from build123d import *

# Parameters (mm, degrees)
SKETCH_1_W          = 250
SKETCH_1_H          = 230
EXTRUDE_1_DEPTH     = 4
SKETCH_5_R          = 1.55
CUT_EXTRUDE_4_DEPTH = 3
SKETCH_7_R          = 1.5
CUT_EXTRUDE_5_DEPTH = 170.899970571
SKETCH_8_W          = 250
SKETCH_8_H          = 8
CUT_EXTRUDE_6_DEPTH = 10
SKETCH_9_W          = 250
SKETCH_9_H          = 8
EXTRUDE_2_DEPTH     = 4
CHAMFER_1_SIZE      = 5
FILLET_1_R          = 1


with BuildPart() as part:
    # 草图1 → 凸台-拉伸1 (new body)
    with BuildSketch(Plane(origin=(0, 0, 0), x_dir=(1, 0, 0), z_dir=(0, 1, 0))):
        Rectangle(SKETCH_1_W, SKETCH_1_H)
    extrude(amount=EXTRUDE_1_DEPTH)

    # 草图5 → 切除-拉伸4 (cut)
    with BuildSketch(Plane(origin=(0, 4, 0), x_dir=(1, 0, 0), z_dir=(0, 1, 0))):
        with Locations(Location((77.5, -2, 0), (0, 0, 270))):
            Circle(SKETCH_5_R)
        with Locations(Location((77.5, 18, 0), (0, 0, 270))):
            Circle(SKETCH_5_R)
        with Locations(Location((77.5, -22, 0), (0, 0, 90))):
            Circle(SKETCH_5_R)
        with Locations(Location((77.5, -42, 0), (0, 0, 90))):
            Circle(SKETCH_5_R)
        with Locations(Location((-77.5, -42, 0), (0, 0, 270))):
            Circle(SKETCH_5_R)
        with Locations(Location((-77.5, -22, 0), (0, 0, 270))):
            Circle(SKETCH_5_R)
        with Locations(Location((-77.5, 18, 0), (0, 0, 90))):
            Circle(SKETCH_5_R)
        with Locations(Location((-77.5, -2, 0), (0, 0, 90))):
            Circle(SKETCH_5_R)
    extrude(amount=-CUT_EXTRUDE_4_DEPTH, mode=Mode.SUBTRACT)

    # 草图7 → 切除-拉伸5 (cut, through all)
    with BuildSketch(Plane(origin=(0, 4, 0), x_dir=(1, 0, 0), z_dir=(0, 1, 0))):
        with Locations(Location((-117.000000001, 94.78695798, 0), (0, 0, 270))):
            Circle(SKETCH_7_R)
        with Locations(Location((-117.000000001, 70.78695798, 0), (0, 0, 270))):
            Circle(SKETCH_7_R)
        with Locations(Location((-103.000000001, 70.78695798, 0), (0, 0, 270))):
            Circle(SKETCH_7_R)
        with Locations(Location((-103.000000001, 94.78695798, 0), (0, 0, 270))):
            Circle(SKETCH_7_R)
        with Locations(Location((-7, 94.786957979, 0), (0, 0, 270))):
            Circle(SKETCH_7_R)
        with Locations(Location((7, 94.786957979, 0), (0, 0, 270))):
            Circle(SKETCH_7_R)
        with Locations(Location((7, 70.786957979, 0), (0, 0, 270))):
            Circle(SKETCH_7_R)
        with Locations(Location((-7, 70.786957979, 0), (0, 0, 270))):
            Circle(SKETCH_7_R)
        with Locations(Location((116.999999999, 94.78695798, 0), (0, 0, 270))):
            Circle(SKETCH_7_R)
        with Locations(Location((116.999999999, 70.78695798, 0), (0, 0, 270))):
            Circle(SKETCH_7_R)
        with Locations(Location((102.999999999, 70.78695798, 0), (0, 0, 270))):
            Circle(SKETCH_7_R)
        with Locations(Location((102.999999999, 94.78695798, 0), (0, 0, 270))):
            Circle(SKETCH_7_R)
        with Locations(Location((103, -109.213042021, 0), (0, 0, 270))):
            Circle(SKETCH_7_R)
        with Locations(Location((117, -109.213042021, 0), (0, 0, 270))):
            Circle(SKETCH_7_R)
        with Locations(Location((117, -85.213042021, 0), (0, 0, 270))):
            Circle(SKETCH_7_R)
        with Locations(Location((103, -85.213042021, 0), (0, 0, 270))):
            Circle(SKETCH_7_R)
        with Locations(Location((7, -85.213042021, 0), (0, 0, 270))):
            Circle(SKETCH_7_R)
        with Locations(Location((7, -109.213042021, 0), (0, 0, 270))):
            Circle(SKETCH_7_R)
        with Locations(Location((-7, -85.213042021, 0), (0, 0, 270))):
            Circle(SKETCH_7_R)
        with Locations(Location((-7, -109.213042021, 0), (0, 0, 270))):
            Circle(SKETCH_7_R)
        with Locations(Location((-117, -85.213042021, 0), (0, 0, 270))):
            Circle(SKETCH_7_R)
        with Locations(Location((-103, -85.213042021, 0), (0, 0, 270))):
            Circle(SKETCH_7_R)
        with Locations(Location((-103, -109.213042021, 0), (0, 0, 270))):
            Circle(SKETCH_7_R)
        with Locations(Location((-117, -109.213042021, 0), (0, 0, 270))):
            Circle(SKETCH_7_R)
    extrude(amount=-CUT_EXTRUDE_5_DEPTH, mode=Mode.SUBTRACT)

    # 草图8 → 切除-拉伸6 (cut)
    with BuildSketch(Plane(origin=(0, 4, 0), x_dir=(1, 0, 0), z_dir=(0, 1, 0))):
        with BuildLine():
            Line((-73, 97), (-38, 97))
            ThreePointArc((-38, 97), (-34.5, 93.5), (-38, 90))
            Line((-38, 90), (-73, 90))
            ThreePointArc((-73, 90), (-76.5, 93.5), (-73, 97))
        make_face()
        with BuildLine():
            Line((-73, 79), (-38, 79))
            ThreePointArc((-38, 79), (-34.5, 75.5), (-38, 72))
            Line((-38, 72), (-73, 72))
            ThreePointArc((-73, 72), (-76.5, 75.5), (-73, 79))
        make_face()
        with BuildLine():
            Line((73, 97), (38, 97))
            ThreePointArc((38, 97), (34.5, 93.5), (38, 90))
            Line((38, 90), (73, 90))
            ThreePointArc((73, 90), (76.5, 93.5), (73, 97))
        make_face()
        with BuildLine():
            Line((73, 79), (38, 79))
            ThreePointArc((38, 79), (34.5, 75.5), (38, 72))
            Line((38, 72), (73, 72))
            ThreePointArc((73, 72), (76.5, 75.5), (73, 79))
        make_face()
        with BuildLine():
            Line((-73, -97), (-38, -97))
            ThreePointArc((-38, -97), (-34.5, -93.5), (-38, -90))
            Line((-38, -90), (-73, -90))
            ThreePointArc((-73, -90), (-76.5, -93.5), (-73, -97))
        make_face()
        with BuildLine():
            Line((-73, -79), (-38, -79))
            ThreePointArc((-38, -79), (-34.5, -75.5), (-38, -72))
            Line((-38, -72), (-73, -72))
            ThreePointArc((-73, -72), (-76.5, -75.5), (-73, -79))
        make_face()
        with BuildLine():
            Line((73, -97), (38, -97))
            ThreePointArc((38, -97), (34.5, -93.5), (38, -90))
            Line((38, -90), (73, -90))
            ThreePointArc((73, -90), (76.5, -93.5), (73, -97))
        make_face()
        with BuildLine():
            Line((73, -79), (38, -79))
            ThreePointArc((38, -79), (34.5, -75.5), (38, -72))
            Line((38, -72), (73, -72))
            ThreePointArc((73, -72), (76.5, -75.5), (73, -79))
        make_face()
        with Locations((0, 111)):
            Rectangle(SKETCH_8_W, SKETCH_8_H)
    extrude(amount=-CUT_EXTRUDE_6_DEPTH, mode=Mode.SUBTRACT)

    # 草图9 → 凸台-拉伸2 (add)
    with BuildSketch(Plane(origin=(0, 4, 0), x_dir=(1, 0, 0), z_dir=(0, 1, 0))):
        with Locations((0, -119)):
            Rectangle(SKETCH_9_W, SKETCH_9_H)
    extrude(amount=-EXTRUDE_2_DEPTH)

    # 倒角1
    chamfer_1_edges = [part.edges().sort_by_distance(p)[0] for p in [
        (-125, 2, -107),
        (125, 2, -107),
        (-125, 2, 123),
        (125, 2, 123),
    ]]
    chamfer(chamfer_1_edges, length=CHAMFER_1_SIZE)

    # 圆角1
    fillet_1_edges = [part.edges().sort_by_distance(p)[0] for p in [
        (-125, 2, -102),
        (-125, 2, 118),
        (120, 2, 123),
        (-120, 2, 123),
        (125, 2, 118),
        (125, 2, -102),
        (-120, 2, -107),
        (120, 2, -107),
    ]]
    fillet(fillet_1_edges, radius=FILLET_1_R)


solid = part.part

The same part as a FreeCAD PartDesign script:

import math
import FreeCAD as App
import Part
import Sketcher

V = App.Vector
Q = App.Units.Quantity


def edges_at(feature, points):
    """Names of the edges that pass closest to the given points."""
    edges = feature.Shape.Edges
    near = lambda p: min(range(len(edges)), key=lambda i: edges[i].distToShape(Part.Vertex(*p))[0])
    return sorted({f"Edge{near(p) + 1}" for p in points})

doc = App.newDocument("Part")
params = doc.addObject("Spreadsheet::Sheet", "Params")
for row, (alias, value) in enumerate([
    ("sketch1_width", "250 mm"),
    ("sketch1_height", "230 mm"),
    ("pad1_length", "4 mm"),
    ("sketch2_diameter", "3.1 mm"),
    ("pocket1_length", "3 mm"),
    ("sketch3_diameter", "3 mm"),
    ("sketch4_radius", "3.5 mm"),
    ("sketch4_width", "35 mm"),
    ("sketch4_width2", "250 mm"),
    ("sketch4_height", "8 mm"),
    ("pocket3_length", "10 mm"),
    ("sketch5_width", "250 mm"),
    ("sketch5_height", "8 mm"),
    ("pad2_length", "4 mm"),
    ("chamfer_size", "5 mm"),
    ("fillet_radius", "1 mm"),
], start=1):
    params.set(f"A{row}", alias)
    params.set(f"B{row}", "=" + value)
    params.setAlias(f"B{row}", alias)

body = doc.addObject("PartDesign::Body", "Body")

# Sketch on XZ plane
sketch1 = body.newObject("Sketcher::SketchObject", "Sketch")
sketch1.AttachmentSupport = (doc.getObject("XZ_Plane"), [""])
sketch1.MapMode = "FlatFace"
sketch1.addGeometry([
    Part.LineSegment(V(-125, -115, 0), V(-125, 115, 0)),
    Part.LineSegment(V(-125, 115, 0), V(125, 115, 0)),
    Part.LineSegment(V(125, 115, 0), V(125, -115, 0)),
    Part.LineSegment(V(125, -115, 0), V(-125, -115, 0)),
], False)
sketch1.addConstraint([
    Sketcher.Constraint("Coincident", 0, 2, 1, 1),
    Sketcher.Constraint("Coincident", 1, 2, 2, 1),
    Sketcher.Constraint("Coincident", 2, 2, 3, 1),
    Sketcher.Constraint("Coincident", 3, 2, 0, 1),
    Sketcher.Constraint("Vertical", 0),
    Sketcher.Constraint("Horizontal", 1),
    Sketcher.Constraint("Vertical", 2),
    Sketcher.Constraint("Horizontal", 3),
    Sketcher.Constraint("Symmetric", 0, 2, 2, 2, -1, 1),
    Sketcher.Constraint("DistanceX", 1, 1, 1, 2, Q("250 mm")),
    Sketcher.Constraint("DistanceY", 0, 1, 0, 2, Q("230 mm")),
])
sketch1.setExpression("Constraints[9]", "Params.sketch1_width")
sketch1.setExpression("Constraints[10]", "Params.sketch1_height")
pad1 = body.newObject("PartDesign::Pad", "Pad")
pad1.Profile = sketch1
pad1.setExpression("Length", "Params.pad1_length")
pad1.Reversed = True

# Sketch on XZ plane
sketch2 = body.newObject("Sketcher::SketchObject", "Sketch001")
sketch2.AttachmentSupport = (doc.getObject("XZ_Plane"), [""])
sketch2.MapMode = "FlatFace"
sketch2.AttachmentOffset = App.Placement(V(0, 0, -4), App.Rotation())
sketch2.addGeometry([
    Part.Circle(V(77.5, 2, 0), V(0, 0, 1), 1.55),  # 0
    Part.Circle(V(77.5, -18, 0), V(0, 0, 1), 1.55),  # 1
    Part.Circle(V(77.5, 22, 0), V(0, 0, 1), 1.55),  # 2
    Part.Circle(V(77.5, 42, 0), V(0, 0, 1), 1.55),  # 3
    Part.Circle(V(-77.5, 42, 0), V(0, 0, 1), 1.55),  # 4
    Part.Circle(V(-77.5, 22, 0), V(0, 0, 1), 1.55),  # 5
    Part.Circle(V(-77.5, -18, 0), V(0, 0, 1), 1.55),  # 6
    Part.Circle(V(-77.5, 2, 0), V(0, 0, 1), 1.55),  # 7
], False)
sketch2.addConstraint([
    Sketcher.Constraint("Equal", 0, 1),
    Sketcher.Constraint("Equal", 1, 2),
    Sketcher.Constraint("Equal", 2, 3),
    Sketcher.Constraint("Equal", 3, 4),
    Sketcher.Constraint("Equal", 4, 5),
    Sketcher.Constraint("Equal", 5, 6),
    Sketcher.Constraint("Equal", 6, 7),
    Sketcher.Constraint("Symmetric", 3, 3, 4, 3, -2),
    Sketcher.Constraint("Symmetric", 2, 3, 5, 3, -2),
    Sketcher.Constraint("Symmetric", 1, 3, 6, 3, -2),
    Sketcher.Constraint("Symmetric", 0, 3, 7, 3, -2),
    Sketcher.Constraint("Vertical", 0, 3, 1, 3),
    Sketcher.Constraint("Vertical", 1, 3, 2, 3),
    Sketcher.Constraint("Vertical", 2, 3, 3, 3),
    Sketcher.Constraint("Diameter", 0, Q("3.1 mm")),
    Sketcher.Constraint("DistanceY", -1, 1, 0, 3, Q("2 mm")),
    Sketcher.Constraint("DistanceY", 1, 3, -1, 1, Q("18 mm")),
    Sketcher.Constraint("DistanceY", -1, 1, 2, 3, Q("22 mm")),
    Sketcher.Constraint("DistanceY", -1, 1, 3, 3, Q("42 mm")),
    Sketcher.Constraint("DistanceX", 4, 3, 3, 3, Q("155 mm")),
])
sketch2.setExpression("Constraints[14]", "Params.sketch2_diameter")
pocket1 = body.newObject("PartDesign::Pocket", "Pocket")
pocket1.Profile = sketch2
pocket1.setExpression("Length", "Params.pocket1_length")
pocket1.Reversed = True

# Sketch on XZ plane
sketch3 = body.newObject("Sketcher::SketchObject", "Sketch002")
sketch3.AttachmentSupport = (doc.getObject("XZ_Plane"), [""])
sketch3.MapMode = "FlatFace"
sketch3.AttachmentOffset = App.Placement(V(0, 0, -4), App.Rotation())
sketch3.addGeometry([
    Part.Circle(V(-117, -94.786958, 0), V(0, 0, 1), 1.5),  # 0
    Part.Circle(V(-117, -70.786958, 0), V(0, 0, 1), 1.5),  # 1
    Part.Circle(V(-103, -70.786958, 0), V(0, 0, 1), 1.5),  # 2
    Part.Circle(V(-103, -94.786958, 0), V(0, 0, 1), 1.5),  # 3
    Part.Circle(V(-7, -94.786958, 0), V(0, 0, 1), 1.5),  # 4
    Part.Circle(V(7, -94.786958, 0), V(0, 0, 1), 1.5),  # 5
    Part.Circle(V(7, -70.786958, 0), V(0, 0, 1), 1.5),  # 6
    Part.Circle(V(-7, -70.786958, 0), V(0, 0, 1), 1.5),  # 7
    Part.Circle(V(117, -94.786958, 0), V(0, 0, 1), 1.5),  # 8
    Part.Circle(V(117, -70.786958, 0), V(0, 0, 1), 1.5),  # 9
    Part.Circle(V(103, -70.786958, 0), V(0, 0, 1), 1.5),  # 10
    Part.Circle(V(103, -94.786958, 0), V(0, 0, 1), 1.5),  # 11
    Part.Circle(V(103, 109.213042, 0), V(0, 0, 1), 1.5),  # 12
    Part.Circle(V(117, 109.213042, 0), V(0, 0, 1), 1.5),  # 13
    Part.Circle(V(117, 85.213042, 0), V(0, 0, 1), 1.5),  # 14
    Part.Circle(V(103, 85.213042, 0), V(0, 0, 1), 1.5),  # 15
    Part.Circle(V(7, 85.213042, 0), V(0, 0, 1), 1.5),  # 16
    Part.Circle(V(7, 109.213042, 0), V(0, 0, 1), 1.5),  # 17
    Part.Circle(V(-7, 85.213042, 0), V(0, 0, 1), 1.5),  # 18
    Part.Circle(V(-7, 109.213042, 0), V(0, 0, 1), 1.5),  # 19
    Part.Circle(V(-117, 85.213042, 0), V(0, 0, 1), 1.5),  # 20
    Part.Circle(V(-103, 85.213042, 0), V(0, 0, 1), 1.5),  # 21
    Part.Circle(V(-103, 109.213042, 0), V(0, 0, 1), 1.5),  # 22
    Part.Circle(V(-117, 109.213042, 0), V(0, 0, 1), 1.5),  # 23
], False)
sketch3.addConstraint([
    Sketcher.Constraint("Equal", 0, 1),
    Sketcher.Constraint("Equal", 1, 2),
    Sketcher.Constraint("Equal", 2, 3),
    Sketcher.Constraint("Equal", 3, 4),
    Sketcher.Constraint("Equal", 4, 5),
    Sketcher.Constraint("Equal", 5, 6),
    Sketcher.Constraint("Equal", 6, 7),
    Sketcher.Constraint("Equal", 7, 8),
    Sketcher.Constraint("Equal", 8, 9),
    Sketcher.Constraint("Equal", 9, 10),
    Sketcher.Constraint("Equal", 10, 11),
    Sketcher.Constraint("Equal", 11, 12),
    Sketcher.Constraint("Equal", 12, 13),
    Sketcher.Constraint("Equal", 13, 14),
    Sketcher.Constraint("Equal", 14, 15),
    Sketcher.Constraint("Equal", 15, 16),
    Sketcher.Constraint("Equal", 16, 17),
    Sketcher.Constraint("Equal", 17, 18),
    Sketcher.Constraint("Equal", 18, 19),
    Sketcher.Constraint("Equal", 19, 20),
    Sketcher.Constraint("Equal", 20, 21),
    Sketcher.Constraint("Equal", 21, 22),
    Sketcher.Constraint("Equal", 22, 23),
    Sketcher.Constraint("Symmetric", 4, 3, 5, 3, -2),
    Sketcher.Constraint("Symmetric", 6, 3, 7, 3, -2),
    Sketcher.Constraint("Symmetric", 0, 3, 8, 3, -2),
    Sketcher.Constraint("Symmetric", 1, 3, 9, 3, -2),
    Sketcher.Constraint("Symmetric", 2, 3, 10, 3, -2),
    Sketcher.Constraint("Symmetric", 3, 3, 11, 3, -2),
    Sketcher.Constraint("Symmetric", 16, 3, 18, 3, -2),
    Sketcher.Constraint("Symmetric", 17, 3, 19, 3, -2),
    Sketcher.Constraint("Symmetric", 14, 3, 20, 3, -2),
    Sketcher.Constraint("Symmetric", 15, 3, 21, 3, -2),
    Sketcher.Constraint("Symmetric", 12, 3, 22, 3, -2),
    Sketcher.Constraint("Symmetric", 13, 3, 23, 3, -2),
    Sketcher.Constraint("Horizontal", 1, 3, 2, 3),
    Sketcher.Constraint("Horizontal", 0, 3, 3, 3),
    Sketcher.Constraint("Horizontal", 3, 3, 4, 3),
    Sketcher.Constraint("Horizontal", 2, 3, 6, 3),
    Sketcher.Constraint("Horizontal", 12, 3, 13, 3),
    Sketcher.Constraint("Horizontal", 14, 3, 15, 3),
    Sketcher.Constraint("Horizontal", 15, 3, 16, 3),
    Sketcher.Constraint("Horizontal", 13, 3, 17, 3),
    Sketcher.Constraint("Vertical", 0, 3, 1, 3),
    Sketcher.Constraint("Vertical", 2, 3, 3, 3),
    Sketcher.Constraint("Vertical", 5, 3, 6, 3),
    Sketcher.Constraint("Vertical", 11, 3, 12, 3),
    Sketcher.Constraint("Vertical", 9, 3, 13, 3),
    Sketcher.Constraint("Vertical", 13, 3, 14, 3),
    Sketcher.Constraint("Vertical", 12, 3, 15, 3),
    Sketcher.Constraint("Vertical", 6, 3, 16, 3),
    Sketcher.Constraint("Vertical", 16, 3, 17, 3),
    Sketcher.Constraint("Diameter", 0, Q("3 mm")),
    Sketcher.Constraint("DistanceX", 0, 3, -1, 1, Q("117 mm")),
    Sketcher.Constraint("DistanceX", 2, 3, -1, 1, Q("103 mm")),
    Sketcher.Constraint("DistanceX", 4, 3, -1, 1, Q("7 mm")),
    Sketcher.Constraint("DistanceY", 0, 3, 1, 3, Q("24 mm")),
    Sketcher.Constraint("DistanceY", 10, 3, 12, 3, Q("180 mm")),
    Sketcher.Constraint("DistanceY", 14, 3, 13, 3, Q("24 mm")),
    Sketcher.Constraint("DistanceY", 0, 3, -1, 1, Q("94.786958 mm")),
])
sketch3.setExpression("Constraints[52]", "Params.sketch3_diameter")
pocket2 = body.newObject("PartDesign::Pocket", "Pocket001")
pocket2.Profile = sketch3
pocket2.Type = "ThroughAll"
pocket2.Reversed = True

# Sketch on XZ plane
sketch4 = body.newObject("Sketcher::SketchObject", "Sketch003")
sketch4.AttachmentSupport = (doc.getObject("XZ_Plane"), [""])
sketch4.MapMode = "FlatFace"
sketch4.AttachmentOffset = App.Placement(V(0, 0, -4), App.Rotation())
sketch4.addGeometry([
    Part.LineSegment(V(-38, -97, 0), V(-73, -97, 0)),  # 0
    Part.ArcOfCircle(Part.Circle(V(-73, -93.5, 0), V(0, 0, 1), 3.5), math.radians(90), math.radians(270)),  # 1
    Part.LineSegment(V(-73, -90, 0), V(-38, -90, 0)),  # 2
    Part.ArcOfCircle(Part.Circle(V(-38, -93.5, 0), V(0, 0, 1), 3.5), math.radians(-90), math.radians(90)),  # 3
    Part.LineSegment(V(-38, -79, 0), V(-73, -79, 0)),  # 4
    Part.ArcOfCircle(Part.Circle(V(-73, -75.5, 0), V(0, 0, 1), 3.5), math.radians(90), math.radians(270)),  # 5
    Part.LineSegment(V(-73, -72, 0), V(-38, -72, 0)),  # 6
    Part.ArcOfCircle(Part.Circle(V(-38, -75.5, 0), V(0, 0, 1), 3.5), math.radians(-90), math.radians(90)),  # 7
    Part.LineSegment(V(73, -97, 0), V(38, -97, 0)),  # 8
    Part.ArcOfCircle(Part.Circle(V(38, -93.5, 0), V(0, 0, 1), 3.5), math.radians(90), math.radians(270)),  # 9
    Part.LineSegment(V(38, -90, 0), V(73, -90, 0)),  # 10
    Part.ArcOfCircle(Part.Circle(V(73, -93.5, 0), V(0, 0, 1), 3.5), math.radians(-90), math.radians(90)),  # 11
    Part.LineSegment(V(73, -79, 0), V(38, -79, 0)),  # 12
    Part.ArcOfCircle(Part.Circle(V(38, -75.5, 0), V(0, 0, 1), 3.5), math.radians(90), math.radians(270)),  # 13
    Part.LineSegment(V(38, -72, 0), V(73, -72, 0)),  # 14
    Part.ArcOfCircle(Part.Circle(V(73, -75.5, 0), V(0, 0, 1), 3.5), math.radians(-90), math.radians(90)),  # 15
    Part.LineSegment(V(-73, 97, 0), V(-38, 97, 0)),  # 16
    Part.ArcOfCircle(Part.Circle(V(-38, 93.5, 0), V(0, 0, 1), 3.5), math.radians(-90), math.radians(90)),  # 17
    Part.LineSegment(V(-38, 90, 0), V(-73, 90, 0)),  # 18
    Part.ArcOfCircle(Part.Circle(V(-73, 93.5, 0), V(0, 0, 1), 3.5), math.radians(90), math.radians(270)),  # 19
    Part.LineSegment(V(-73, 79, 0), V(-38, 79, 0)),  # 20
    Part.ArcOfCircle(Part.Circle(V(-38, 75.5, 0), V(0, 0, 1), 3.5), math.radians(-90), math.radians(90)),  # 21
    Part.LineSegment(V(-38, 72, 0), V(-73, 72, 0)),  # 22
    Part.ArcOfCircle(Part.Circle(V(-73, 75.5, 0), V(0, 0, 1), 3.5), math.radians(90), math.radians(270)),  # 23
    Part.LineSegment(V(38, 97, 0), V(73, 97, 0)),  # 24
    Part.ArcOfCircle(Part.Circle(V(73, 93.5, 0), V(0, 0, 1), 3.5), math.radians(-90), math.radians(90)),  # 25
    Part.LineSegment(V(73, 90, 0), V(38, 90, 0)),  # 26
    Part.ArcOfCircle(Part.Circle(V(38, 93.5, 0), V(0, 0, 1), 3.5), math.radians(90), math.radians(270)),  # 27
    Part.LineSegment(V(38, 79, 0), V(73, 79, 0)),  # 28
    Part.ArcOfCircle(Part.Circle(V(73, 75.5, 0), V(0, 0, 1), 3.5), math.radians(-90), math.radians(90)),  # 29
    Part.LineSegment(V(73, 72, 0), V(38, 72, 0)),  # 30
    Part.ArcOfCircle(Part.Circle(V(38, 75.5, 0), V(0, 0, 1), 3.5), math.radians(90), math.radians(270)),  # 31
    Part.LineSegment(V(-125, -115, 0), V(-125, -107, 0)),  # 32
    Part.LineSegment(V(-125, -107, 0), V(125, -107, 0)),  # 33
    Part.LineSegment(V(125, -107, 0), V(125, -115, 0)),  # 34
    Part.LineSegment(V(125, -115, 0), V(-125, -115, 0)),  # 35
], False)
sketch4.addConstraint([
    Sketcher.Constraint("Tangent", 0, 2, 1, 2),
    Sketcher.Constraint("Tangent", 1, 1, 2, 1),
    Sketcher.Constraint("Tangent", 2, 2, 3, 2),
    Sketcher.Constraint("Tangent", 3, 1, 0, 1),
    Sketcher.Constraint("Tangent", 4, 2, 5, 2),
    Sketcher.Constraint("Tangent", 5, 1, 6, 1),
    Sketcher.Constraint("Tangent", 6, 2, 7, 2),
    Sketcher.Constraint("Tangent", 7, 1, 4, 1),
    Sketcher.Constraint("Tangent", 8, 2, 9, 2),
    Sketcher.Constraint("Tangent", 9, 1, 10, 1),
    Sketcher.Constraint("Tangent", 10, 2, 11, 2),
    Sketcher.Constraint("Tangent", 11, 1, 8, 1),
    Sketcher.Constraint("Tangent", 12, 2, 13, 2),
    Sketcher.Constraint("Tangent", 13, 1, 14, 1),
    Sketcher.Constraint("Tangent", 14, 2, 15, 2),
    Sketcher.Constraint("Tangent", 15, 1, 12, 1),
    Sketcher.Constraint("Tangent", 16, 2, 17, 2),
    Sketcher.Constraint("Tangent", 17, 1, 18, 1),
    Sketcher.Constraint("Tangent", 18, 2, 19, 2),
    Sketcher.Constraint("Tangent", 19, 1, 16, 1),
    Sketcher.Constraint("Tangent", 20, 2, 21, 2),
    Sketcher.Constraint("Tangent", 21, 1, 22, 1),
    Sketcher.Constraint("Tangent", 22, 2, 23, 2),
    Sketcher.Constraint("Tangent", 23, 1, 20, 1),
    Sketcher.Constraint("Tangent", 24, 2, 25, 2),
    Sketcher.Constraint("Tangent", 25, 1, 26, 1),
    Sketcher.Constraint("Tangent", 26, 2, 27, 2),
    Sketcher.Constraint("Tangent", 27, 1, 24, 1),
    Sketcher.Constraint("Tangent", 28, 2, 29, 2),
    Sketcher.Constraint("Tangent", 29, 1, 30, 1),
    Sketcher.Constraint("Tangent", 30, 2, 31, 2),
    Sketcher.Constraint("Tangent", 31, 1, 28, 1),
    Sketcher.Constraint("Coincident", 32, 2, 33, 1),
    Sketcher.Constraint("Coincident", 33, 2, 34, 1),
    Sketcher.Constraint("Coincident", 34, 2, 35, 1),
    Sketcher.Constraint("Coincident", 35, 2, 32, 1),
    Sketcher.Constraint("Horizontal", 0),
    Sketcher.Constraint("Horizontal", 2),
    Sketcher.Constraint("Horizontal", 4),
    Sketcher.Constraint("Horizontal", 6),
    Sketcher.Constraint("Horizontal", 8),
    Sketcher.Constraint("Horizontal", 10),
    Sketcher.Constraint("Horizontal", 12),
    Sketcher.Constraint("Horizontal", 14),
    Sketcher.Constraint("Horizontal", 16),
    Sketcher.Constraint("Horizontal", 18),
    Sketcher.Constraint("Horizontal", 20),
    Sketcher.Constraint("Horizontal", 22),
    Sketcher.Constraint("Horizontal", 24),
    Sketcher.Constraint("Horizontal", 26),
    Sketcher.Constraint("Horizontal", 28),
    Sketcher.Constraint("Horizontal", 30),
    Sketcher.Constraint("Vertical", 32),
    Sketcher.Constraint("Horizontal", 33),
    Sketcher.Constraint("Vertical", 34),
    Sketcher.Constraint("Horizontal", 35),
    Sketcher.Constraint("Equal", 3, 5),
    Sketcher.Constraint("Equal", 7, 9),
    Sketcher.Constraint("Equal", 11, 13),
    Sketcher.Constraint("Equal", 15, 17),
    Sketcher.Constraint("Equal", 19, 21),
    Sketcher.Constraint("Equal", 23, 25),
    Sketcher.Constraint("Equal", 27, 29),
    Sketcher.Constraint("Symmetric", 9, 3, 17, 3, -1, 1),
    Sketcher.Constraint("Symmetric", 13, 3, 21, 3, -1, 1),
    Sketcher.Constraint("Symmetric", 1, 3, 25, 3, -1, 1),
    Sketcher.Constraint("Symmetric", 5, 3, 29, 3, -1, 1),
    Sketcher.Constraint("Symmetric", 3, 3, 9, 3, -2),
    Sketcher.Constraint("Symmetric", 7, 3, 13, 3, -2),
    Sketcher.Constraint("Vertical", 1, 3, 5, 3),
    Sketcher.Constraint("Vertical", 3, 3, 7, 3),
    Sketcher.Constraint("Vertical", 11, 3, 15, 3),
    Sketcher.Constraint("Vertical", 5, 3, 19, 3),
    Sketcher.Constraint("Vertical", 19, 3, 23, 3),
    Sketcher.Constraint("Vertical", 15, 3, 25, 3),
    Sketcher.Constraint("Vertical", 13, 3, 27, 3),
    Sketcher.Constraint("Vertical", 27, 3, 31, 3),
    Sketcher.Constraint("Radius", 1, Q("3.5 mm")),
    Sketcher.Constraint("DistanceX", 0, 2, 0, 1, Q("35 mm")),
    Sketcher.Constraint("DistanceX", 33, 1, 33, 2, Q("250 mm")),
    Sketcher.Constraint("DistanceY", 32, 1, 32, 2, Q("8 mm")),
    Sketcher.Constraint("DistanceX", 1, 3, -1, 1, Q("73 mm")),
    Sketcher.Constraint("DistanceY", 0, 2, -1, 1, Q("97 mm")),
    Sketcher.Constraint("DistanceY", 4, 2, -1, 1, Q("79 mm")),
    Sketcher.Constraint("DistanceX", 32, 2, -1, 1, Q("125 mm")),
    Sketcher.Constraint("DistanceY", 32, 2, -1, 1, Q("107 mm")),
])
sketch4.setExpression("Constraints[77]", "Params.sketch4_radius")
sketch4.setExpression("Constraints[78]", "Params.sketch4_width")
sketch4.setExpression("Constraints[79]", "Params.sketch4_width2")
sketch4.setExpression("Constraints[80]", "Params.sketch4_height")
pocket3 = body.newObject("PartDesign::Pocket", "Pocket002")
pocket3.Profile = sketch4
pocket3.setExpression("Length", "Params.pocket3_length")
pocket3.Reversed = True

# Sketch on XZ plane
sketch5 = body.newObject("Sketcher::SketchObject", "Sketch004")
sketch5.AttachmentSupport = (doc.getObject("XZ_Plane"), [""])
sketch5.MapMode = "FlatFace"
sketch5.AttachmentOffset = App.Placement(V(0, 0, -4), App.Rotation())
sketch5.addGeometry([
    Part.LineSegment(V(-125, 115, 0), V(-125, 123, 0)),
    Part.LineSegment(V(-125, 123, 0), V(125, 123, 0)),
    Part.LineSegment(V(125, 123, 0), V(125, 115, 0)),
    Part.LineSegment(V(125, 115, 0), V(-125, 115, 0)),
], False)
sketch5.addConstraint([
    Sketcher.Constraint("Coincident", 0, 2, 1, 1),
    Sketcher.Constraint("Coincident", 1, 2, 2, 1),
    Sketcher.Constraint("Coincident", 2, 2, 3, 1),
    Sketcher.Constraint("Coincident", 3, 2, 0, 1),
    Sketcher.Constraint("Vertical", 0),
    Sketcher.Constraint("Horizontal", 1),
    Sketcher.Constraint("Vertical", 2),
    Sketcher.Constraint("Horizontal", 3),
    Sketcher.Constraint("DistanceX", 1, 1, 1, 2, Q("250 mm")),
    Sketcher.Constraint("DistanceY", 0, 1, 0, 2, Q("8 mm")),
    Sketcher.Constraint("DistanceX", 0, 2, -1, 1, Q("125 mm")),
    Sketcher.Constraint("DistanceY", -1, 1, 0, 2, Q("123 mm")),
])
sketch5.setExpression("Constraints[8]", "Params.sketch5_width")
sketch5.setExpression("Constraints[9]", "Params.sketch5_height")
pad2 = body.newObject("PartDesign::Pad", "Pad001")
pad2.Profile = sketch5
pad2.setExpression("Length", "Params.pad2_length")
doc.recompute()

chamfer = body.newObject("PartDesign::Chamfer", "Chamfer")
chamfer.Base = (pad2, edges_at(pad2, [
    (-125, 2, -107),
    (125, 2, -107),
    (-125, 2, 123),
    (125, 2, 123),
]))
chamfer.setExpression("Size", "Params.chamfer_size")
doc.recompute()

fillet = body.newObject("PartDesign::Fillet", "Fillet")
fillet.Base = (chamfer, edges_at(chamfer, [
    (-125, 2, -102),
    (-125, 2, 118),
    (120, 2, 123),
    (-120, 2, 123),
    (125, 2, 118),
    (125, 2, -102),
    (-120, 2, -107),
    (120, 2, -107),
]))
fillet.setExpression("Radius", "Params.fillet_radius")

doc.recompute()
